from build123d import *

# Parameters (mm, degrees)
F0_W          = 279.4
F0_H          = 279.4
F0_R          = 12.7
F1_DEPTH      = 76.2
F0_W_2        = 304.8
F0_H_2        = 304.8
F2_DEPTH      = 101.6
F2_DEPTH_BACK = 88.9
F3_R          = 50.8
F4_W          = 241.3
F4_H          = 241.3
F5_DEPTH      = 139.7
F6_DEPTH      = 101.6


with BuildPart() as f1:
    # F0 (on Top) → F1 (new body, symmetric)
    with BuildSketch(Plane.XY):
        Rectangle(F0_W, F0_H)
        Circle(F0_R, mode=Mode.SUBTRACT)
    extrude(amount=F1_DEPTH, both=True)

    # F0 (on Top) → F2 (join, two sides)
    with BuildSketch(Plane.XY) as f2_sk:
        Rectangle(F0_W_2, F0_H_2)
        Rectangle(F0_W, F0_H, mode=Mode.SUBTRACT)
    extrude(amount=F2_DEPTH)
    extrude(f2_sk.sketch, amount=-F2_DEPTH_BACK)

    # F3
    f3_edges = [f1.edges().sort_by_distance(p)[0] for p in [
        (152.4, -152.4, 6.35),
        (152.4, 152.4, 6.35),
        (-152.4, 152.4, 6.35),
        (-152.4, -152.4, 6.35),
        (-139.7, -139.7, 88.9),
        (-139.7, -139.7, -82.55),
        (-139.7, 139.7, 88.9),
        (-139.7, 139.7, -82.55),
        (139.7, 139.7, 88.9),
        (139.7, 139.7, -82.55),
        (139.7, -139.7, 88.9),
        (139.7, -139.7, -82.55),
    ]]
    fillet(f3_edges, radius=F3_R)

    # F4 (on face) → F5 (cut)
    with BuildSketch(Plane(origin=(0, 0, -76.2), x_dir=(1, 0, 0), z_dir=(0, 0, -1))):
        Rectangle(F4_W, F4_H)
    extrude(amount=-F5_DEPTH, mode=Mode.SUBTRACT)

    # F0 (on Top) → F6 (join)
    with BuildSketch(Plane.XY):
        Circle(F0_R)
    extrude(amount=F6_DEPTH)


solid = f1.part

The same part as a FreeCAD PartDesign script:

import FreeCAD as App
import Part
import Sketcher
Q = App.Units.Quantity


def edges_at(feature, points):
    """Names of the edges that pass closest to the given points."""
    edges = feature.Shape.Edges
    near = lambda p: min(range(len(edges)), key=lambda i: edges[i].distToShape(Part.Vertex(*p))[0])
    return sorted({f"Edge{near(p) + 1}" for p in points})

doc = App.newDocument("Part")
body = doc.addObject("PartDesign::Body", "Body")

# Sketch on XY plane
sketch1 = body.newObject("Sketcher::SketchObject", "Sketch")
sketch1.AttachmentSupport = (doc.getObject("XY_Plane"), [""])
sketch1.MapMode = "FlatFace"
sketch1.addGeometry([
    Part.LineSegment(App.Vector(-139.7, 139.7, 0), App.Vector(-139.7, -139.7, 0)),  # 0
    Part.LineSegment(App.Vector(-139.7, -139.7, 0), App.Vector(139.7, -139.7, 0)),  # 1
    Part.LineSegment(App.Vector(139.7, -139.7, 0), App.Vector(139.7, 139.7, 0)),  # 2
    Part.LineSegment(App.Vector(139.7, 139.7, 0), App.Vector(-139.7, 139.7, 0)),  # 3
    Part.Circle(App.Vector(0, 0, 0), App.Vector(0, 0, 1), 12.7),  # 4
], False)
sketch1.addConstraint([
    Sketcher.Constraint("Coincident", 0, 2, 1, 1),
    Sketcher.Constraint("Coincident", 1, 2, 2, 1),
    Sketcher.Constraint("Coincident", 2, 2, 3, 1),
    Sketcher.Constraint("Coincident", 3, 2, 0, 1),
    Sketcher.Constraint("Vertical", 0),
    Sketcher.Constraint("Horizontal", 1),
    Sketcher.Constraint("Vertical", 2),
    Sketcher.Constraint("Horizontal", 3),
    Sketcher.Constraint("Coincident", 4, 3, -1, 1),
    Sketcher.Constraint("Symmetric", 0, 2, 2, 2, -1, 1),
    Sketcher.Constraint("Equal", 3, 0),
    Sketcher.Constraint("Diameter", 4, Q("1 in")),
    Sketcher.Constraint("DistanceX", 1, 1, 1, 2, Q("11 in")),
])
pad1 = body.newObject("PartDesign::Pad", "Pad")
pad1.Profile = sketch1
pad1.Length = Q("6 in")
pad1.Midplane = True

# Sketch on XY plane
sketch2 = body.newObject("Sketcher::SketchObject", "Sketch001")
sketch2.AttachmentSupport = (doc.getObject("XY_Plane"), [""])
sketch2.MapMode = "FlatFace"
sketch2.addGeometry([
    Part.LineSegment(App.Vector(-152.4, 152.4, 0), App.Vector(-152.4, -152.4, 0)),  # 0
    Part.LineSegment(App.Vector(-152.4, -152.4, 0), App.Vector(152.4, -152.4, 0)),  # 1
    Part.LineSegment(App.Vector(152.4, -152.4, 0), App.Vector(152.4, 152.4, 0)),  # 2
    Part.LineSegment(App.Vector(152.4, 152.4, 0), App.Vector(-152.4, 152.4, 0)),  # 3
    Part.LineSegment(App.Vector(139.7, -139.7, 0), App.Vector(-139.7, -139.7, 0)),  # 4
    Part.LineSegment(App.Vector(-139.7, -139.7, 0), App.Vector(-139.7, 139.7, 0)),  # 5
    Part.LineSegment(App.Vector(-139.7, 139.7, 0), App.Vector(139.7, 139.7, 0)),  # 6
    Part.LineSegment(App.Vector(139.7, 139.7, 0), App.Vector(139.7, -139.7, 0)),  # 7
], False)
sketch2.addConstraint([
    Sketcher.Constraint("Coincident", 0, 2, 1, 1),
    Sketcher.Constraint("Coincident", 1, 2, 2, 1),
    Sketcher.Constraint("Coincident", 2, 2, 3, 1),
    Sketcher.Constraint("Coincident", 3, 2, 0, 1),
    Sketcher.Constraint("Coincident", 4, 2, 5, 1),
    Sketcher.Constraint("Coincident", 5, 2, 6, 1),
    Sketcher.Constraint("Coincident", 6, 2, 7, 1),
    Sketcher.Constraint("Coincident", 7, 2, 4, 1),
    Sketcher.Constraint("Vertical", 0),
    Sketcher.Constraint("Horizontal", 1),
    Sketcher.Constraint("Vertical", 2),
    Sketcher.Constraint("Horizontal", 3),
    Sketcher.Constraint("Horizontal", 4),
    Sketcher.Constraint("Vertical", 5),
    Sketcher.Constraint("Horizontal", 6),
    Sketcher.Constraint("Vertical", 7),
    Sketcher.Constraint("Symmetric", 0, 2, 2, 2, -1, 1),
    Sketcher.Constraint("Symmetric", 4, 2, 6, 2, -1, 1),
    Sketcher.Constraint("Equal", 3, 0),
    Sketcher.Constraint("Equal", 6, 5),
    Sketcher.Constraint("DistanceX", 1, 1, 1, 2, Q("12 in")),
    Sketcher.Constraint("DistanceX", 4, 2, 4, 1, Q("11 in")),
])
pad2 = body.newObject("PartDesign::Pad", "Pad001")
pad2.Profile = sketch2
pad2.Type = "TwoLengths"
pad2.Length = Q("4 in")
pad2.Length2 = Q("3.5 in")
doc.recompute()

fillet = body.newObject("PartDesign::Fillet", "Fillet")
fillet.Base = (pad2, edges_at(pad2, [
    (152.4, -152.4, 6.35),
    (152.4, 152.4, 6.35),
    (-152.4, 152.4, 6.35),
    (-152.4, -152.4, 6.35),
    (-139.7, -139.7, 88.9),
    (-139.7, -139.7, -82.55),
    (-139.7, 139.7, 88.9),
    (-139.7, 139.7, -82.55),
    (139.7, 139.7, 88.9),
    (139.7, 139.7, -82.55),
    (139.7, -139.7, 88.9),
    (139.7, -139.7, -82.55),
]))
fillet.Radius = Q("2 in")

# Sketch on XY plane
sketch3 = body.newObject("Sketcher::SketchObject", "Sketch002")
sketch3.AttachmentSupport = (doc.getObject("XY_Plane"), [""])
sketch3.MapMode = "FlatFace"
sketch3.AttachmentOffset = App.Placement(App.Vector(0, 0, -3 * 25.4), App.Rotation())
sketch3.addGeometry([
    Part.LineSegment(App.Vector(-120.65, -120.65, 0), App.Vector(-120.65, 120.65, 0)),
    Part.LineSegment(App.Vector(-120.65, 120.65, 0), App.Vector(120.65, 120.65, 0)),
    Part.LineSegment(App.Vector(120.65, 120.65, 0), App.Vector(120.65, -120.65, 0)),
    Part.LineSegment(App.Vector(120.65, -120.65, 0), App.Vector(-120.65, -120.65, 0)),
], False)
sketch3.addConstraint([
    Sketcher.Constraint("Coincident", 0, 2, 1, 1),
    Sketcher.Constraint("Coincident", 1, 2, 2, 1),
    Sketcher.Constraint("Coincident", 2, 2, 3, 1),
    Sketcher.Constraint("Coincident", 3, 2, 0, 1),
    Sketcher.Constraint("Vertical", 0),
    Sketcher.Constraint("Horizontal", 1),
    Sketcher.Constraint("Vertical", 2),
    Sketcher.Constraint("Horizontal", 3),
    Sketcher.Constraint("Symmetric", 0, 2, 2, 2, -1, 1),
    Sketcher.Constraint("Equal", 3, 0),
    Sketcher.Constraint("DistanceX", 1, 1, 1, 2, Q("9.5 in")),
])
pocket1 = body.newObject("PartDesign::Pocket", "Pocket")
pocket1.Profile = sketch3
pocket1.Length = Q("5.5 in")
pocket1.Reversed = True

# Sketch on XY plane
sketch4 = body.newObject("Sketcher::SketchObject", "Sketch003")
sketch4.AttachmentSupport = (doc.getObject("XY_Plane"), [""])
sketch4.MapMode = "FlatFace"
sketch4.addGeometry(Part.Circle(App.Vector(0, 0, 0), App.Vector(0, 0, 1), 12.7), False)
sketch4.addConstraint([
    Sketcher.Constraint("Coincident", 0, 3, -1, 1),
    Sketcher.Constraint("Diameter", 0, Q("1 in")),
])
pad3 = body.newObject("PartDesign::Pad", "Pad002")
pad3.Profile = sketch4
pad3.Length = Q("4 in")

doc.recompute()
